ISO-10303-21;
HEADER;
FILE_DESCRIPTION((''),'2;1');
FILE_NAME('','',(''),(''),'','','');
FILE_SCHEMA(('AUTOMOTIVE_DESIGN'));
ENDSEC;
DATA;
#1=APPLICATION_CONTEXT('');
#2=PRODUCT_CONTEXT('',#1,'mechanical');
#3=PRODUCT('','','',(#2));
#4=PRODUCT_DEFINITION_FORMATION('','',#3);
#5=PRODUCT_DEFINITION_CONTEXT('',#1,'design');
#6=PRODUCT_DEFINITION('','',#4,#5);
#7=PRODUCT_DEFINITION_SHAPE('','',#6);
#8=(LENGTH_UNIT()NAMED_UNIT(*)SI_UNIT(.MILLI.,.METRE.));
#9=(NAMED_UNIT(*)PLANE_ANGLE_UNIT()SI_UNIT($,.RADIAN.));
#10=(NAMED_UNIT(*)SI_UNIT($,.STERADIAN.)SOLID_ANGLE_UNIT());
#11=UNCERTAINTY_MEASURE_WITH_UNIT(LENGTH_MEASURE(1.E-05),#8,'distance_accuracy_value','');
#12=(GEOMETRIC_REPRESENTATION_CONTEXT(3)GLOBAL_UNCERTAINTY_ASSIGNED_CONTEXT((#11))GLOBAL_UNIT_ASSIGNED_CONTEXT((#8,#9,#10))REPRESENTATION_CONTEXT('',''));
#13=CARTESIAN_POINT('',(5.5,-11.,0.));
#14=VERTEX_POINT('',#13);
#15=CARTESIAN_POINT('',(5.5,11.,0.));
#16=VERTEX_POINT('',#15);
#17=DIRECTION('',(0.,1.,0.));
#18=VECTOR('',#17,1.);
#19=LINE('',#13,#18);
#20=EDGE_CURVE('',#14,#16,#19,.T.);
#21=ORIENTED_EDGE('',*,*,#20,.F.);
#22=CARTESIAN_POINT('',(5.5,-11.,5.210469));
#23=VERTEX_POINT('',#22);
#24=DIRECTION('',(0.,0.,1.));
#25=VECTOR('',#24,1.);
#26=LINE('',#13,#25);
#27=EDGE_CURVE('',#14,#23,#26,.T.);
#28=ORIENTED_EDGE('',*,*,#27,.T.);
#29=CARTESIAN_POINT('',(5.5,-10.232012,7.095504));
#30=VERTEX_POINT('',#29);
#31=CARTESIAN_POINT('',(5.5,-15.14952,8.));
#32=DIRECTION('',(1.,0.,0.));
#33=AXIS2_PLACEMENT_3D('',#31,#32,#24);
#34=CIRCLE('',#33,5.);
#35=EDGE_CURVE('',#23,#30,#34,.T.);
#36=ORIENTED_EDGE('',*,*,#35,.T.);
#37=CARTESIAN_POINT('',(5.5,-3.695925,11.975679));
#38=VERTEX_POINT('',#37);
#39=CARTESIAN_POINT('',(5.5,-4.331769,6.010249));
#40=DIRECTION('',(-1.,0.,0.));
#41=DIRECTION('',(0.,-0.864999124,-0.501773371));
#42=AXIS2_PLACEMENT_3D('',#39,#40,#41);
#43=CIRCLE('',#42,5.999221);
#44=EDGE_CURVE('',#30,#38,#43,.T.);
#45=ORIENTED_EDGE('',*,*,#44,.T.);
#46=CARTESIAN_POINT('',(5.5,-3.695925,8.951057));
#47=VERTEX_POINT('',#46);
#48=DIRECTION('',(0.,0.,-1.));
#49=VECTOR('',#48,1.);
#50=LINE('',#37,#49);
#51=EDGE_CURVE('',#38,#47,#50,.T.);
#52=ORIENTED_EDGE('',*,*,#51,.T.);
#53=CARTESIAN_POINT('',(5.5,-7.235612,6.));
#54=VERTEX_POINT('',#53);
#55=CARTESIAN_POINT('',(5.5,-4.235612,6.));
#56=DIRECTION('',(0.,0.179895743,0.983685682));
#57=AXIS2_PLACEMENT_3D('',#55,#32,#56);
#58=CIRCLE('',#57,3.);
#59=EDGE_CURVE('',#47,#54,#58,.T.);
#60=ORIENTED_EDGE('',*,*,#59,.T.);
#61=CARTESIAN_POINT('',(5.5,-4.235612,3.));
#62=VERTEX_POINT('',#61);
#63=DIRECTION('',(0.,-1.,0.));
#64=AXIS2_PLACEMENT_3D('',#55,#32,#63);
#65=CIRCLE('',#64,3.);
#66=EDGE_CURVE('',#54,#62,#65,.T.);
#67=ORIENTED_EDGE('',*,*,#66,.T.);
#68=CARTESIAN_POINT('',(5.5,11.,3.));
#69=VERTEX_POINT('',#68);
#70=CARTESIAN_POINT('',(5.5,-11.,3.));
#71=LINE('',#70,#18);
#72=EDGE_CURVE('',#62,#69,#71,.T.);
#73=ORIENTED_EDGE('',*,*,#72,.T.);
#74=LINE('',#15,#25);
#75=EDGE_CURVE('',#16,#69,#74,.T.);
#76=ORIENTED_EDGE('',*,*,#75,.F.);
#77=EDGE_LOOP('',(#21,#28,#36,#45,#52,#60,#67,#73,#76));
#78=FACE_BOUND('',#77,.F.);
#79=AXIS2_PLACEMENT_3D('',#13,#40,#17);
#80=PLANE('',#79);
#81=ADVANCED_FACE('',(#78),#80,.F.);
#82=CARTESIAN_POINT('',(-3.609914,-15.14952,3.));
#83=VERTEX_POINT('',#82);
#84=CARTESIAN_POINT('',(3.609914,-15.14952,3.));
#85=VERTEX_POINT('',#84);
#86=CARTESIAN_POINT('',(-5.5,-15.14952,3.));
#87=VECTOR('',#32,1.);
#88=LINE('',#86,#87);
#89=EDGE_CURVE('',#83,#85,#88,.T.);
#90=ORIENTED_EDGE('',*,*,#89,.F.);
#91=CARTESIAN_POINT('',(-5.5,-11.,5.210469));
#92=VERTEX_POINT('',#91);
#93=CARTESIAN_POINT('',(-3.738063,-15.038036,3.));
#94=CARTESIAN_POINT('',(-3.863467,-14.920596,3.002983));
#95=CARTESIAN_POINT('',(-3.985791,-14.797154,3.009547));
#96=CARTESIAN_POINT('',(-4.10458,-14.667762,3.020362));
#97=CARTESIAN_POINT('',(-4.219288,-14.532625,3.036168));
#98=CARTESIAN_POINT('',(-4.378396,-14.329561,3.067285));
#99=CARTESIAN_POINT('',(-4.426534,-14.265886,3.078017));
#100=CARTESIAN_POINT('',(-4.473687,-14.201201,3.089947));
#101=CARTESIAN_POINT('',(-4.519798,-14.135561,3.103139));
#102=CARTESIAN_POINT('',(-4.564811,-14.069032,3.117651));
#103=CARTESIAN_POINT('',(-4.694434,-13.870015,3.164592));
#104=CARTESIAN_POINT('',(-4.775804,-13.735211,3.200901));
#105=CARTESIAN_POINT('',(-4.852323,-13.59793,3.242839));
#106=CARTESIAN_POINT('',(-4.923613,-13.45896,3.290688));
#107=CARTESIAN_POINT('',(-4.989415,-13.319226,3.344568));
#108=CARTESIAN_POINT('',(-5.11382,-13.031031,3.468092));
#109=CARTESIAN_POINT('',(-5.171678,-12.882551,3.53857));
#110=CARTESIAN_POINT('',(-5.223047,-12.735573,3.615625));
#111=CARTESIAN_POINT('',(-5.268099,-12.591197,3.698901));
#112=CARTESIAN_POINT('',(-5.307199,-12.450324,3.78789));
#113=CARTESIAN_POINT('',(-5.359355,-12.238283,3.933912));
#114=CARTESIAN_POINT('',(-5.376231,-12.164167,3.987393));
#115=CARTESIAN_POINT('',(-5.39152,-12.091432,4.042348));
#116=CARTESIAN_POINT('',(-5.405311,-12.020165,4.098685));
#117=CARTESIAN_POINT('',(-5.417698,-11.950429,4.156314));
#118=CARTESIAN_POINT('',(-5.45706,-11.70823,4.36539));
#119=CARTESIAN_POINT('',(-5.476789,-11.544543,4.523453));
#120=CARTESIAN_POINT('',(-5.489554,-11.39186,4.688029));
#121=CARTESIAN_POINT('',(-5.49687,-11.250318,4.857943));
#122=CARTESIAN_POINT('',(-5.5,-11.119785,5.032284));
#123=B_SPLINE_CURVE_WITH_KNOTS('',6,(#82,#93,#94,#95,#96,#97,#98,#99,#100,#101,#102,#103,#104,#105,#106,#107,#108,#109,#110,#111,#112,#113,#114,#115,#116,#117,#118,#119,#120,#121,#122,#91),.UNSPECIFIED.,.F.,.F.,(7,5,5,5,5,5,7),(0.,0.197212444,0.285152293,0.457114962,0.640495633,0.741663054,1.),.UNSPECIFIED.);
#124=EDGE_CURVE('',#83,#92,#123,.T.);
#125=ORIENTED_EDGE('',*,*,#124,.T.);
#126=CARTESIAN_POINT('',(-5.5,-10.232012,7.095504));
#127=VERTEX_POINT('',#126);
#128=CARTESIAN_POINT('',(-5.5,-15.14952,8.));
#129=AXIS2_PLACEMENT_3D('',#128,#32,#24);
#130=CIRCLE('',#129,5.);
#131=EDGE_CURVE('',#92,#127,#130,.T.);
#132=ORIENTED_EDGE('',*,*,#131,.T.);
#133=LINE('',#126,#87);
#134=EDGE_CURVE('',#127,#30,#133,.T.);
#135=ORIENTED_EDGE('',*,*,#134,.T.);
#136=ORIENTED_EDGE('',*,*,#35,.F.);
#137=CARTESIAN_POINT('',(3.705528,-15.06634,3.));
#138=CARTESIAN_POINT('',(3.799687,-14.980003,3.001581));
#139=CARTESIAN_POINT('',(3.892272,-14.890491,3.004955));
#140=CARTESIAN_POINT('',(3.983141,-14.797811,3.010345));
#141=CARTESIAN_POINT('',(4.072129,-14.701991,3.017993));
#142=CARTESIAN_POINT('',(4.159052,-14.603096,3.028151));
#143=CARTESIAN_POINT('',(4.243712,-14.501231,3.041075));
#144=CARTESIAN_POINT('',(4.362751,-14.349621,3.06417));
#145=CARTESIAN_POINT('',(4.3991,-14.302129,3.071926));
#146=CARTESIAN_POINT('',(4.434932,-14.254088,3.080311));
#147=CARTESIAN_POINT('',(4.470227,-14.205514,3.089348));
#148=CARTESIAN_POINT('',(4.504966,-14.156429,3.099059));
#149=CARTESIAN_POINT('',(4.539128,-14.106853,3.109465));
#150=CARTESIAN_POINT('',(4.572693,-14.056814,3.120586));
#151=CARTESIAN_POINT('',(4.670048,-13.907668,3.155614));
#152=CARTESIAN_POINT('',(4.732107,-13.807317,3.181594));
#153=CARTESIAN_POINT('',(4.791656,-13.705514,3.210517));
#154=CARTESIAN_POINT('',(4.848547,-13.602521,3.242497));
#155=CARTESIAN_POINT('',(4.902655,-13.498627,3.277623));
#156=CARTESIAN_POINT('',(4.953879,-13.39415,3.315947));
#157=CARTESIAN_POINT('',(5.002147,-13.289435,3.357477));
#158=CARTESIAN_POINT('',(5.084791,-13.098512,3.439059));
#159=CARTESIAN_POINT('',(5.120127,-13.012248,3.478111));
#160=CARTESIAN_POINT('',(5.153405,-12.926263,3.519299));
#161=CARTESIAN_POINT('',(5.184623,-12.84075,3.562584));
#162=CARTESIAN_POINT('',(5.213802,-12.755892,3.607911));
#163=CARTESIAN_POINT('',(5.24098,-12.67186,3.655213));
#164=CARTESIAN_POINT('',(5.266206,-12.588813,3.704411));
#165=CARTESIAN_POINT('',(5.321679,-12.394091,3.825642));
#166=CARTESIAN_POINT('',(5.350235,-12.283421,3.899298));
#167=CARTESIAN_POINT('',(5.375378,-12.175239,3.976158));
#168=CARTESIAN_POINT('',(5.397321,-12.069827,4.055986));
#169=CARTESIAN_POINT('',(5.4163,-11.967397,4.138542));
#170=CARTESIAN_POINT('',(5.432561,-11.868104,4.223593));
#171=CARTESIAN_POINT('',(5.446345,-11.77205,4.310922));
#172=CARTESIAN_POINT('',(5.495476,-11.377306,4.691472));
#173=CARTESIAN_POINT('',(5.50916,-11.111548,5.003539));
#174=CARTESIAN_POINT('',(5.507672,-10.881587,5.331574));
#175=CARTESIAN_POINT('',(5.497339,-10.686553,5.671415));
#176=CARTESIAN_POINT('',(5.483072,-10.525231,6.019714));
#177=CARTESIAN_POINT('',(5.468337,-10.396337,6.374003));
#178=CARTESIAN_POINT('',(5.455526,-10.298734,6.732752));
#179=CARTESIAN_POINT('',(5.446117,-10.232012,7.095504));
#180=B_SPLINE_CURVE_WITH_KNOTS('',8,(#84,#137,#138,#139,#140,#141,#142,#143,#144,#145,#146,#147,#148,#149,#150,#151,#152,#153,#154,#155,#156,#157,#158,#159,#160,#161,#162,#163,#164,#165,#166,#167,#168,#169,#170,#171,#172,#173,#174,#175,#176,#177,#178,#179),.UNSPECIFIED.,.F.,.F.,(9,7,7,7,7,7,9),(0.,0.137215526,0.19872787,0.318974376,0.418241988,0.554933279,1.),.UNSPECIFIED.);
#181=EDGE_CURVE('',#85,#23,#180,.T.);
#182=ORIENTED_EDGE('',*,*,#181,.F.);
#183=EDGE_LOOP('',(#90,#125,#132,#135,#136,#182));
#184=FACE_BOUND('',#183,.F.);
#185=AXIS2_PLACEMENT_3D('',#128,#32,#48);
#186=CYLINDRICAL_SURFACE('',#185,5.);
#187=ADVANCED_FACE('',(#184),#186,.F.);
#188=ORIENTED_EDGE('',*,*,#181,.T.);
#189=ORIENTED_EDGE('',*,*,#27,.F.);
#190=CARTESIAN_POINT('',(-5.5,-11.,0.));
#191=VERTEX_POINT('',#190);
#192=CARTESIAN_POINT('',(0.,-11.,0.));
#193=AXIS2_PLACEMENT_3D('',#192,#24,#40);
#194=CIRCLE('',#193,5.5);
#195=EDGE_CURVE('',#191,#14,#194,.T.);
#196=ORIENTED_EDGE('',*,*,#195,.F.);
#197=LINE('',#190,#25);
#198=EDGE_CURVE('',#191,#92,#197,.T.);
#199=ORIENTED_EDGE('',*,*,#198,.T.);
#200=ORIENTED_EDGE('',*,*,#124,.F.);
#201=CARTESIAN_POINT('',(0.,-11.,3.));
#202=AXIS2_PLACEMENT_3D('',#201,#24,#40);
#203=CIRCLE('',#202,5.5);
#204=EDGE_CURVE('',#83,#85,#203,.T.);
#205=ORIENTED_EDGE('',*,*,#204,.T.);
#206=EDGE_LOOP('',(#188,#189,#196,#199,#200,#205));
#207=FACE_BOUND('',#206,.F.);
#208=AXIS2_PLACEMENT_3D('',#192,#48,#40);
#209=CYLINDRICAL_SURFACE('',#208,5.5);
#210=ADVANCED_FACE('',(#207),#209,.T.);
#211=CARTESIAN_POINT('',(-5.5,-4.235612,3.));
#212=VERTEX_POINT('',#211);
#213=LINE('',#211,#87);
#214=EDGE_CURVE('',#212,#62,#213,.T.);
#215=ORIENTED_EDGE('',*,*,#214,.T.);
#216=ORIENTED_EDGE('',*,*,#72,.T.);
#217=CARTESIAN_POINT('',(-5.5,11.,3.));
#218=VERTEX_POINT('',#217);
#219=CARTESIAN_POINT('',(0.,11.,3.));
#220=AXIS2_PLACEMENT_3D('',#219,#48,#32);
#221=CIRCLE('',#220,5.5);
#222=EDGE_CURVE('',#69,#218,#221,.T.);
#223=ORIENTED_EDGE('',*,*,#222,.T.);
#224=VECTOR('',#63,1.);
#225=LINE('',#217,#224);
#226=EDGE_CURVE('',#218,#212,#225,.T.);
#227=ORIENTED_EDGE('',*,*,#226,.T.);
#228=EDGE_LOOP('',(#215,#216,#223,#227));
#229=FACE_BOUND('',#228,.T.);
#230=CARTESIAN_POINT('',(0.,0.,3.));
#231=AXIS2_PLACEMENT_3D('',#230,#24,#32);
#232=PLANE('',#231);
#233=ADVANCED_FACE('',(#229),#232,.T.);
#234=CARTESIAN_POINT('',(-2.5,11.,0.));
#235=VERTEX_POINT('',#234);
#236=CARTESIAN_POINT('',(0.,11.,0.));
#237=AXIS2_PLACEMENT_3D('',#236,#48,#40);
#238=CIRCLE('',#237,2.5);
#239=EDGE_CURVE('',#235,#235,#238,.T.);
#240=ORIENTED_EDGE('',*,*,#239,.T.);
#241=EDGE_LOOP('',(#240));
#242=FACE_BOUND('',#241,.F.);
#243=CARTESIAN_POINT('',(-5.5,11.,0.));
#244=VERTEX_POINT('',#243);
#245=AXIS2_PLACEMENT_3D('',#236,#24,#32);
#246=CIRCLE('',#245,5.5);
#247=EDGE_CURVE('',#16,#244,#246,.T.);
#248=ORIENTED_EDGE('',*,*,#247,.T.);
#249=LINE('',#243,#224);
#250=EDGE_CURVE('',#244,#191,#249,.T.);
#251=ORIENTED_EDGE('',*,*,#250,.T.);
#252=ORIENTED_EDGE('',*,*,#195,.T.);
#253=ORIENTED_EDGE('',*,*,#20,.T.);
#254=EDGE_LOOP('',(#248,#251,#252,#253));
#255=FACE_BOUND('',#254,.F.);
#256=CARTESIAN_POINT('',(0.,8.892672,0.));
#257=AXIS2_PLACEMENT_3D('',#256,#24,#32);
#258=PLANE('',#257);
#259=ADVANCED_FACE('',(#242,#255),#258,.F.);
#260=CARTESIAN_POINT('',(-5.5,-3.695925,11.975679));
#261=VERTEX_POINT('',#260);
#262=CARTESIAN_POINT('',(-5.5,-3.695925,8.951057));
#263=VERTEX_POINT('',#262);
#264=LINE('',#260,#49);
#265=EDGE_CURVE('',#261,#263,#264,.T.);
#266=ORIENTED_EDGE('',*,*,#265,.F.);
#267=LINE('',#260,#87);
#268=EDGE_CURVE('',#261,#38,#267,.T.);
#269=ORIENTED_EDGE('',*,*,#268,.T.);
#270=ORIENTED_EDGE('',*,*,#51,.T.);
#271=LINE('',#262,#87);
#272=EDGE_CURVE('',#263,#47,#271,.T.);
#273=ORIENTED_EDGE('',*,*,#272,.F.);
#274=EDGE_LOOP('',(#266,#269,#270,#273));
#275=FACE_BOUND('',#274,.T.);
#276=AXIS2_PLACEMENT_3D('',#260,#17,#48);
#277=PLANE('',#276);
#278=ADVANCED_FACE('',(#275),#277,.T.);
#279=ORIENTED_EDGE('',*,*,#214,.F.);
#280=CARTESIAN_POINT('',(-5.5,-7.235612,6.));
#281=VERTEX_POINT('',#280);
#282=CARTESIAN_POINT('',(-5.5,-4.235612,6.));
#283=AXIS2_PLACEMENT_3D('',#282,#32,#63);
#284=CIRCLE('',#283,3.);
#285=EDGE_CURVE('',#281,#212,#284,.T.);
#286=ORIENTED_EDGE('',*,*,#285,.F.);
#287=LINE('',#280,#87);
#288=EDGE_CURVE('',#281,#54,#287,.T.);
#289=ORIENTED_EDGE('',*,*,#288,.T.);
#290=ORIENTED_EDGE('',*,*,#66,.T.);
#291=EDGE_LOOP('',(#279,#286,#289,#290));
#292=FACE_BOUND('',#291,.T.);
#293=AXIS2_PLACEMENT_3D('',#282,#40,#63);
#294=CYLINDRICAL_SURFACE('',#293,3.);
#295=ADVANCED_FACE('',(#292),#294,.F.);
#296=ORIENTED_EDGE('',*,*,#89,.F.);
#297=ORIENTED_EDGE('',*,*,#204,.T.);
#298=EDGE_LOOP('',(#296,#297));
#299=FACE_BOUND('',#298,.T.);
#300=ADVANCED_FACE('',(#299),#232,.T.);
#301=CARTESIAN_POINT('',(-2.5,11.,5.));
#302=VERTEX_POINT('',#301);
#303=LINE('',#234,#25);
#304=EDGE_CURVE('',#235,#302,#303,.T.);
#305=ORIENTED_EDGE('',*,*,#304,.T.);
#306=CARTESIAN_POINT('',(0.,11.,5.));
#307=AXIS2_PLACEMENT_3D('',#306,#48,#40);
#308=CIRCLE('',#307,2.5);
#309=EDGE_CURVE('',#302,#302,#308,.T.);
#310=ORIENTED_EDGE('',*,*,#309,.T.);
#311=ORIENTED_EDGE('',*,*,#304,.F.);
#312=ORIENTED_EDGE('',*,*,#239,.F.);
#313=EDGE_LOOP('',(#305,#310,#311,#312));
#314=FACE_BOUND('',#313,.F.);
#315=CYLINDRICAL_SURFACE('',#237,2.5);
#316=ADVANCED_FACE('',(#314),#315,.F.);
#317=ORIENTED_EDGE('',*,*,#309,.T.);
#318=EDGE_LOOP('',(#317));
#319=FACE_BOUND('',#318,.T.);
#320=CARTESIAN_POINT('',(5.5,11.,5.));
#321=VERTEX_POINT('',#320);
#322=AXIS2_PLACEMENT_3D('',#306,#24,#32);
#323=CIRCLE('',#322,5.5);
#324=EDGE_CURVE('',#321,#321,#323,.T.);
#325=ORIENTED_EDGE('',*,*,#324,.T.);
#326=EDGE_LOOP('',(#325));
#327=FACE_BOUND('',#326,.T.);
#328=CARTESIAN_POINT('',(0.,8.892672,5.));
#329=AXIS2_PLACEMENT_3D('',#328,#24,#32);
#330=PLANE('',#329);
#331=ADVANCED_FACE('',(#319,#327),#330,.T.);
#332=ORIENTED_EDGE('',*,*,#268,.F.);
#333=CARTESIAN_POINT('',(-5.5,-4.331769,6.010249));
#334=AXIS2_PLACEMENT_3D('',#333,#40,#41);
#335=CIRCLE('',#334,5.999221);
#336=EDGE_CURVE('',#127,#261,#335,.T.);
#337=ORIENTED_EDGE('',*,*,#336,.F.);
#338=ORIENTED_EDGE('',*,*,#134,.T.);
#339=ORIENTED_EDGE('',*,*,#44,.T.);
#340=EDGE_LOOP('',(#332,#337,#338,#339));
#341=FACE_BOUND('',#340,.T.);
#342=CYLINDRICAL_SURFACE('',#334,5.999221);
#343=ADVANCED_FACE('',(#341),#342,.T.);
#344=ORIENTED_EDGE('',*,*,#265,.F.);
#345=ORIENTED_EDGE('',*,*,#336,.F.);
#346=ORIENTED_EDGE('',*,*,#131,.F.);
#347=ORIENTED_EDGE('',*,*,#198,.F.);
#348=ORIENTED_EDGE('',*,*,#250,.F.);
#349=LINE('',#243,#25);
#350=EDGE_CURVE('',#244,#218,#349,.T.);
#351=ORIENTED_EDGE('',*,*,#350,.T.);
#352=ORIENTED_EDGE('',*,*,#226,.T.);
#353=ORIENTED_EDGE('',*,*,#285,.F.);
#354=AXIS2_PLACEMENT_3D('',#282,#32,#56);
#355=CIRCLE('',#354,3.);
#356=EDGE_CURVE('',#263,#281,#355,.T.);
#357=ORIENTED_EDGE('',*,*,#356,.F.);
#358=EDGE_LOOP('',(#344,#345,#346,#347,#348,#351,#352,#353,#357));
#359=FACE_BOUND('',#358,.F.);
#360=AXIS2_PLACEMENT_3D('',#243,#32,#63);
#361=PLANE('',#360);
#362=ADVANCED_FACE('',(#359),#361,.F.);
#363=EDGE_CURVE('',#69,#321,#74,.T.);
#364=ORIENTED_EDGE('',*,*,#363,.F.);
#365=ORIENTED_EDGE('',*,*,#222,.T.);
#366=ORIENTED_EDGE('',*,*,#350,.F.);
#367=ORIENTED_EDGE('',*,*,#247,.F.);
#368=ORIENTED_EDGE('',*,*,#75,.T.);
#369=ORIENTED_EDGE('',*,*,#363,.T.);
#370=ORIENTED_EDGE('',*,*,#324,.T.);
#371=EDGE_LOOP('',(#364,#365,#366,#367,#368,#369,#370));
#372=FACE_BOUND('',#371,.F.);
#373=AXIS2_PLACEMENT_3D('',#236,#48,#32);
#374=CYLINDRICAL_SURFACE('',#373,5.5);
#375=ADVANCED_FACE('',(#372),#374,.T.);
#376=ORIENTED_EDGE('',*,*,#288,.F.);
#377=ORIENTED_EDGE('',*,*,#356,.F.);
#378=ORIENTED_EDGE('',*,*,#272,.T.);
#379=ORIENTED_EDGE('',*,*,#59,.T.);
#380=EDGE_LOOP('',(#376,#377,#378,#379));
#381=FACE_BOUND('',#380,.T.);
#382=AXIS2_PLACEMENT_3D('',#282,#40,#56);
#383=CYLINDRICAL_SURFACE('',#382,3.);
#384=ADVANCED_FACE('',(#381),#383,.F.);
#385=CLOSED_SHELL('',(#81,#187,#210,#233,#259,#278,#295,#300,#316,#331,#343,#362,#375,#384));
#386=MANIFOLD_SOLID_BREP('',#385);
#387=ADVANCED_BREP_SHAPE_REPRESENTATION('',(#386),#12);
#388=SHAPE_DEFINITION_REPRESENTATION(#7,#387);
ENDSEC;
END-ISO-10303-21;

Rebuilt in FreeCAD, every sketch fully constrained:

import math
import FreeCAD as App
import Part
import Sketcher

V = App.Vector
Q = App.Units.Quantity


def edges_at(feature, points):
    """Names of the edges that pass closest to the given points."""
    edges = feature.Shape.Edges
    near = lambda p: min(range(len(edges)), key=lambda i: edges[i].distToShape(Part.Vertex(*p))[0])
    return sorted({f"Edge{near(p) + 1}" for p in points})

doc = App.newDocument("Part")
body = doc.addObject("PartDesign::Body", "Body")

sketch1 = body.newObject("Sketcher::SketchObject", "Sketch")
sketch1.AttachmentSupport = (doc.getObject("XY_Plane"), [""])
sketch1.MapMode = "FlatFace"
sketch1.addGeometry(Part.LineSegment(V(-5.5, 11, 0), V(-5.5, -11, 0)), False)
sketch1.addGeometry(Part.ArcOfCircle(Part.Circle(V(0, -11, 0), V(0, 0, 1), 5.5), math.radians(180), math.radians(360)), False)
sketch1.addGeometry(Part.LineSegment(V(5.5, -11, 0), V(5.5, 11, 0)), False)
sketch1.addGeometry(Part.ArcOfCircle(Part.Circle(V(0, 11, 0), V(0, 0, 1), 5.5), math.radians(180), math.radians(360)), False)
sketch1.addConstraint(Sketcher.Constraint("Tangent", 0, 2, 1, 1))
sketch1.addConstraint(Sketcher.Constraint("Tangent", 1, 2, 2, 1))
sketch1.addConstraint(Sketcher.Constraint("Tangent", 2, 2, 3, 2))
sketch1.addConstraint(Sketcher.Constraint("Tangent", 3, 1, 0, 1))
sketch1.addConstraint(Sketcher.Constraint("Vertical", 0))
sketch1.addConstraint(Sketcher.Constraint("Vertical", 2))
sketch1.addConstraint(Sketcher.Constraint("Symmetric", 1, 3, 3, 3, -1, 1))
sketch1.addConstraint(Sketcher.Constraint("Radius", 1, Q("5.5 mm")))
sketch1.addConstraint(Sketcher.Constraint("DistanceY", 0, 2, 0, 1, Q("22 mm")))
pad1 = body.newObject("PartDesign::Pad", "Pad")
pad1.Profile = sketch1
pad1.Length = 3

sketch2 = body.newObject("Sketcher::SketchObject", "Sketch001")
sketch2.AttachmentSupport = (doc.getObject("XY_Plane"), [""])
sketch2.MapMode = "FlatFace"
sketch2.addGeometry(Part.Circle(V(0, 11, 0), V(0, 0, 1), 5.5), False)
sketch2.addGeometry(Part.Circle(V(0, 11, 0), V(0, 0, 1), 2.5), False)
sketch2.addConstraint(Sketcher.Constraint("Coincident", 1, 3, 0, 3))
sketch2.addConstraint(Sketcher.Constraint("PointOnObject", 0, 3, -2))
sketch2.addConstraint(Sketcher.Constraint("Diameter", 0, Q("11 mm")))
sketch2.addConstraint(Sketcher.Constraint("Diameter", 1, Q("5 mm")))
sketch2.addConstraint(Sketcher.Constraint("DistanceY", -1, 1, 0, 3, Q("11 mm")))
pad2 = body.newObject("PartDesign::Pad", "Pad001")
pad2.Profile = sketch2
pad2.Length = 5

sketch3 = body.newObject("Sketcher::SketchObject", "Sketch002")
sketch3.AttachmentSupport = (doc.getObject("YZ_Plane"), [""])
sketch3.MapMode = "FlatFace"
sketch3.AttachmentOffset = App.Placement(V(0, 0, -5.5), App.Rotation())
sketch3.addGeometry(Part.ArcOfCircle(Part.Circle(V(-4.235612, 6, 0), V(0, 0, 1), 3), math.radians(79.636313), math.radians(180)), False)
sketch3.addGeometry(Part.ArcOfCircle(Part.Circle(V(-4.235612, 6, 0), V(0, 0, 1), 3), math.radians(180), math.radians(270)), False)
sketch3.addGeometry(Part.LineSegment(V(-4.235612, 3, 0), V(-9.521089, 3, 0)), False)
sketch3.addGeometry(Part.ArcOfCircle(Part.Circle(V(-4.331769, 6.010249, 0), V(0, 0, 1), 5.999221), math.radians(83.91592), math.radians(210.117395)), False)
sketch3.addGeometry(Part.LineSegment(V(-3.695925, 11.975679, 0), V(-3.695925, 8.951057, 0)), False)
sketch3.addConstraint(Sketcher.Constraint("Tangent", 0, 2, 1, 1))
sketch3.addConstraint(Sketcher.Constraint("Tangent", 1, 2, 2, 1))
sketch3.addConstraint(Sketcher.Constraint("Coincident", 2, 2, 3, 2))
sketch3.addConstraint(Sketcher.Constraint("Coincident", 3, 1, 4, 1))
sketch3.addConstraint(Sketcher.Constraint("Coincident", 4, 2, 0, 1))
sketch3.addConstraint(Sketcher.Constraint("Horizontal", 2))
sketch3.addConstraint(Sketcher.Constraint("Vertical", 4))
sketch3.addConstraint(Sketcher.Constraint("Equal", 0, 1))
sketch3.addConstraint(Sketcher.Constraint("Horizontal", 1, 3, 0, 2))
sketch3.addConstraint(Sketcher.Constraint("Radius", 0, Q("3 mm")))
sketch3.addConstraint(Sketcher.Constraint("DistanceY", -1, 1, 0, 3, Q("6 mm")))
sketch3.addConstraint(Sketcher.Constraint("Radius", 3, Q("5.999221 mm")))
sketch3.addConstraint(Sketcher.Constraint("DistanceY", 4, 2, 4, 1, Q("3.024622 mm")))
sketch3.addConstraint(Sketcher.Constraint("DistanceX", 2, 2, 2, 1, Q("5.285478 mm")))
sketch3.addConstraint(Sketcher.Constraint("DistanceX", 0, 3, -1, 1, Q("4.235612 mm")))
sketch3.addConstraint(Sketcher.Constraint("DistanceX", 3, 3, -1, 1, Q("4.331769 mm")))
pad3 = body.newObject("PartDesign::Pad", "Pad002")
pad3.Profile = sketch3
pad3.Length = 11
doc.recompute()

fillet = body.newObject("PartDesign::Fillet", "Fillet")
fillet.Base = (pad3, edges_at(pad3, [(0, -9.521, 3)]))
fillet.Radius = 5

doc.recompute()
